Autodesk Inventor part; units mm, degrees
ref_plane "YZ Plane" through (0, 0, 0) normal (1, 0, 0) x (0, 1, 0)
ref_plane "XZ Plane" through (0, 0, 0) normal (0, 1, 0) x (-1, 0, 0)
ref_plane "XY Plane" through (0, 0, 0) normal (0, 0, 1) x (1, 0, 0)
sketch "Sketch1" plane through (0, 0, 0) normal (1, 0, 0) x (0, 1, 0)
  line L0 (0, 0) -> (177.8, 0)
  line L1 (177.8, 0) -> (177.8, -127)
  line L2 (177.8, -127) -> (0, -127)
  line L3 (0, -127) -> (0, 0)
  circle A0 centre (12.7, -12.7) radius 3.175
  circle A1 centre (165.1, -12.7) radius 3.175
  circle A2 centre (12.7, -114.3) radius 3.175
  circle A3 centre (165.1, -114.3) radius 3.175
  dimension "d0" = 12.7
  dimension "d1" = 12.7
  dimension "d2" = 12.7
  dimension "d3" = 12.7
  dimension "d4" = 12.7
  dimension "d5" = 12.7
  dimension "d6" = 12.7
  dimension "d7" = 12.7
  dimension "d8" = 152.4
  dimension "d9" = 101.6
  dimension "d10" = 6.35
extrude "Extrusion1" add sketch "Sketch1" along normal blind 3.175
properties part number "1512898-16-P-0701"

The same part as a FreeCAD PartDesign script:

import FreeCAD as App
import Part
import Sketcher

V = App.Vector
Q = App.Units.Quantity


def add_polygon(sketch, points):
    """Adds a closed chain of lines whose ends are joined by coincident constraints."""
    first, n = sketch.GeometryCount, len(points)
    for a, b in zip(points, points[1:] + points[:1]):
        sketch.addGeometry(Part.LineSegment(App.Vector(*a, 0), App.Vector(*b, 0)), False)
    for i in range(n):
        sketch.addConstraint(Sketcher.Constraint("Coincident", first + i, 2, first + (i + 1) % n, 1))

doc = App.newDocument("Part")
body = doc.addObject("PartDesign::Body", "Body")

# Sketch on YZ plane
sketch1 = body.newObject("Sketcher::SketchObject", "Sketch")
sketch1.AttachmentSupport = (doc.getObject("YZ_Plane"), [""])
sketch1.MapMode = "FlatFace"
add_polygon(sketch1, [(177.8, 0), (0, 0), (0, -127), (177.8, -127)])  # lines 0-3
sketch1.addGeometry(Part.Circle(V(12.7, -114.3, 0), V(0, 0, 1), 3.2), False)  # 4
sketch1.addGeometry(Part.Circle(V(165.1, -114.3, 0), V(0, 0, 1), 3.2), False)  # 5
sketch1.addGeometry(Part.Circle(V(12.7, -12.7, 0), V(0, 0, 1), 3.2), False)  # 6
sketch1.addGeometry(Part.Circle(V(165.1, -12.7, 0), V(0, 0, 1), 3.2), False)  # 7
sketch1.addConstraint([
    Sketcher.Constraint("Horizontal", 0),
    Sketcher.Constraint("Vertical", 1),
    Sketcher.Constraint("Horizontal", 2),
    Sketcher.Constraint("Vertical", 3),
    Sketcher.Constraint("Coincident", 0, 2, -1, 1),
    Sketcher.Constraint("Equal", 4, 5),
    Sketcher.Constraint("Equal", 5, 6),
    Sketcher.Constraint("Equal", 6, 7),
    Sketcher.Constraint("Horizontal", 4, 3, 5, 3),
    Sketcher.Constraint("Horizontal", 6, 3, 7, 3),
    Sketcher.Constraint("Vertical", 4, 3, 6, 3),
    Sketcher.Constraint("Vertical", 5, 3, 7, 3),
    Sketcher.Constraint("Diameter", 4, Q("0.25 in")),
    Sketcher.Constraint("DistanceX", 4, 3, 5, 3, Q("6 in")),
    Sketcher.Constraint("DistanceY", 4, 3, 6, 3, Q("4 in")),
    Sketcher.Constraint("DistanceX", -1, 1, 4, 3, Q("0.5 in")),
    Sketcher.Constraint("DistanceY", 6, 3, -1, 1, Q("0.5 in")),
    Sketcher.Constraint("DistanceY", 1, 2, 4, 3, Q("0.5 in")),
    Sketcher.Constraint("DistanceX", 5, 3, 2, 2, Q("0.5 in")),
])
pad1 = body.newObject("PartDesign::Pad", "Pad")
pad1.Profile = sketch1
pad1.Length = Q("0.125 in")

doc.recompute()
